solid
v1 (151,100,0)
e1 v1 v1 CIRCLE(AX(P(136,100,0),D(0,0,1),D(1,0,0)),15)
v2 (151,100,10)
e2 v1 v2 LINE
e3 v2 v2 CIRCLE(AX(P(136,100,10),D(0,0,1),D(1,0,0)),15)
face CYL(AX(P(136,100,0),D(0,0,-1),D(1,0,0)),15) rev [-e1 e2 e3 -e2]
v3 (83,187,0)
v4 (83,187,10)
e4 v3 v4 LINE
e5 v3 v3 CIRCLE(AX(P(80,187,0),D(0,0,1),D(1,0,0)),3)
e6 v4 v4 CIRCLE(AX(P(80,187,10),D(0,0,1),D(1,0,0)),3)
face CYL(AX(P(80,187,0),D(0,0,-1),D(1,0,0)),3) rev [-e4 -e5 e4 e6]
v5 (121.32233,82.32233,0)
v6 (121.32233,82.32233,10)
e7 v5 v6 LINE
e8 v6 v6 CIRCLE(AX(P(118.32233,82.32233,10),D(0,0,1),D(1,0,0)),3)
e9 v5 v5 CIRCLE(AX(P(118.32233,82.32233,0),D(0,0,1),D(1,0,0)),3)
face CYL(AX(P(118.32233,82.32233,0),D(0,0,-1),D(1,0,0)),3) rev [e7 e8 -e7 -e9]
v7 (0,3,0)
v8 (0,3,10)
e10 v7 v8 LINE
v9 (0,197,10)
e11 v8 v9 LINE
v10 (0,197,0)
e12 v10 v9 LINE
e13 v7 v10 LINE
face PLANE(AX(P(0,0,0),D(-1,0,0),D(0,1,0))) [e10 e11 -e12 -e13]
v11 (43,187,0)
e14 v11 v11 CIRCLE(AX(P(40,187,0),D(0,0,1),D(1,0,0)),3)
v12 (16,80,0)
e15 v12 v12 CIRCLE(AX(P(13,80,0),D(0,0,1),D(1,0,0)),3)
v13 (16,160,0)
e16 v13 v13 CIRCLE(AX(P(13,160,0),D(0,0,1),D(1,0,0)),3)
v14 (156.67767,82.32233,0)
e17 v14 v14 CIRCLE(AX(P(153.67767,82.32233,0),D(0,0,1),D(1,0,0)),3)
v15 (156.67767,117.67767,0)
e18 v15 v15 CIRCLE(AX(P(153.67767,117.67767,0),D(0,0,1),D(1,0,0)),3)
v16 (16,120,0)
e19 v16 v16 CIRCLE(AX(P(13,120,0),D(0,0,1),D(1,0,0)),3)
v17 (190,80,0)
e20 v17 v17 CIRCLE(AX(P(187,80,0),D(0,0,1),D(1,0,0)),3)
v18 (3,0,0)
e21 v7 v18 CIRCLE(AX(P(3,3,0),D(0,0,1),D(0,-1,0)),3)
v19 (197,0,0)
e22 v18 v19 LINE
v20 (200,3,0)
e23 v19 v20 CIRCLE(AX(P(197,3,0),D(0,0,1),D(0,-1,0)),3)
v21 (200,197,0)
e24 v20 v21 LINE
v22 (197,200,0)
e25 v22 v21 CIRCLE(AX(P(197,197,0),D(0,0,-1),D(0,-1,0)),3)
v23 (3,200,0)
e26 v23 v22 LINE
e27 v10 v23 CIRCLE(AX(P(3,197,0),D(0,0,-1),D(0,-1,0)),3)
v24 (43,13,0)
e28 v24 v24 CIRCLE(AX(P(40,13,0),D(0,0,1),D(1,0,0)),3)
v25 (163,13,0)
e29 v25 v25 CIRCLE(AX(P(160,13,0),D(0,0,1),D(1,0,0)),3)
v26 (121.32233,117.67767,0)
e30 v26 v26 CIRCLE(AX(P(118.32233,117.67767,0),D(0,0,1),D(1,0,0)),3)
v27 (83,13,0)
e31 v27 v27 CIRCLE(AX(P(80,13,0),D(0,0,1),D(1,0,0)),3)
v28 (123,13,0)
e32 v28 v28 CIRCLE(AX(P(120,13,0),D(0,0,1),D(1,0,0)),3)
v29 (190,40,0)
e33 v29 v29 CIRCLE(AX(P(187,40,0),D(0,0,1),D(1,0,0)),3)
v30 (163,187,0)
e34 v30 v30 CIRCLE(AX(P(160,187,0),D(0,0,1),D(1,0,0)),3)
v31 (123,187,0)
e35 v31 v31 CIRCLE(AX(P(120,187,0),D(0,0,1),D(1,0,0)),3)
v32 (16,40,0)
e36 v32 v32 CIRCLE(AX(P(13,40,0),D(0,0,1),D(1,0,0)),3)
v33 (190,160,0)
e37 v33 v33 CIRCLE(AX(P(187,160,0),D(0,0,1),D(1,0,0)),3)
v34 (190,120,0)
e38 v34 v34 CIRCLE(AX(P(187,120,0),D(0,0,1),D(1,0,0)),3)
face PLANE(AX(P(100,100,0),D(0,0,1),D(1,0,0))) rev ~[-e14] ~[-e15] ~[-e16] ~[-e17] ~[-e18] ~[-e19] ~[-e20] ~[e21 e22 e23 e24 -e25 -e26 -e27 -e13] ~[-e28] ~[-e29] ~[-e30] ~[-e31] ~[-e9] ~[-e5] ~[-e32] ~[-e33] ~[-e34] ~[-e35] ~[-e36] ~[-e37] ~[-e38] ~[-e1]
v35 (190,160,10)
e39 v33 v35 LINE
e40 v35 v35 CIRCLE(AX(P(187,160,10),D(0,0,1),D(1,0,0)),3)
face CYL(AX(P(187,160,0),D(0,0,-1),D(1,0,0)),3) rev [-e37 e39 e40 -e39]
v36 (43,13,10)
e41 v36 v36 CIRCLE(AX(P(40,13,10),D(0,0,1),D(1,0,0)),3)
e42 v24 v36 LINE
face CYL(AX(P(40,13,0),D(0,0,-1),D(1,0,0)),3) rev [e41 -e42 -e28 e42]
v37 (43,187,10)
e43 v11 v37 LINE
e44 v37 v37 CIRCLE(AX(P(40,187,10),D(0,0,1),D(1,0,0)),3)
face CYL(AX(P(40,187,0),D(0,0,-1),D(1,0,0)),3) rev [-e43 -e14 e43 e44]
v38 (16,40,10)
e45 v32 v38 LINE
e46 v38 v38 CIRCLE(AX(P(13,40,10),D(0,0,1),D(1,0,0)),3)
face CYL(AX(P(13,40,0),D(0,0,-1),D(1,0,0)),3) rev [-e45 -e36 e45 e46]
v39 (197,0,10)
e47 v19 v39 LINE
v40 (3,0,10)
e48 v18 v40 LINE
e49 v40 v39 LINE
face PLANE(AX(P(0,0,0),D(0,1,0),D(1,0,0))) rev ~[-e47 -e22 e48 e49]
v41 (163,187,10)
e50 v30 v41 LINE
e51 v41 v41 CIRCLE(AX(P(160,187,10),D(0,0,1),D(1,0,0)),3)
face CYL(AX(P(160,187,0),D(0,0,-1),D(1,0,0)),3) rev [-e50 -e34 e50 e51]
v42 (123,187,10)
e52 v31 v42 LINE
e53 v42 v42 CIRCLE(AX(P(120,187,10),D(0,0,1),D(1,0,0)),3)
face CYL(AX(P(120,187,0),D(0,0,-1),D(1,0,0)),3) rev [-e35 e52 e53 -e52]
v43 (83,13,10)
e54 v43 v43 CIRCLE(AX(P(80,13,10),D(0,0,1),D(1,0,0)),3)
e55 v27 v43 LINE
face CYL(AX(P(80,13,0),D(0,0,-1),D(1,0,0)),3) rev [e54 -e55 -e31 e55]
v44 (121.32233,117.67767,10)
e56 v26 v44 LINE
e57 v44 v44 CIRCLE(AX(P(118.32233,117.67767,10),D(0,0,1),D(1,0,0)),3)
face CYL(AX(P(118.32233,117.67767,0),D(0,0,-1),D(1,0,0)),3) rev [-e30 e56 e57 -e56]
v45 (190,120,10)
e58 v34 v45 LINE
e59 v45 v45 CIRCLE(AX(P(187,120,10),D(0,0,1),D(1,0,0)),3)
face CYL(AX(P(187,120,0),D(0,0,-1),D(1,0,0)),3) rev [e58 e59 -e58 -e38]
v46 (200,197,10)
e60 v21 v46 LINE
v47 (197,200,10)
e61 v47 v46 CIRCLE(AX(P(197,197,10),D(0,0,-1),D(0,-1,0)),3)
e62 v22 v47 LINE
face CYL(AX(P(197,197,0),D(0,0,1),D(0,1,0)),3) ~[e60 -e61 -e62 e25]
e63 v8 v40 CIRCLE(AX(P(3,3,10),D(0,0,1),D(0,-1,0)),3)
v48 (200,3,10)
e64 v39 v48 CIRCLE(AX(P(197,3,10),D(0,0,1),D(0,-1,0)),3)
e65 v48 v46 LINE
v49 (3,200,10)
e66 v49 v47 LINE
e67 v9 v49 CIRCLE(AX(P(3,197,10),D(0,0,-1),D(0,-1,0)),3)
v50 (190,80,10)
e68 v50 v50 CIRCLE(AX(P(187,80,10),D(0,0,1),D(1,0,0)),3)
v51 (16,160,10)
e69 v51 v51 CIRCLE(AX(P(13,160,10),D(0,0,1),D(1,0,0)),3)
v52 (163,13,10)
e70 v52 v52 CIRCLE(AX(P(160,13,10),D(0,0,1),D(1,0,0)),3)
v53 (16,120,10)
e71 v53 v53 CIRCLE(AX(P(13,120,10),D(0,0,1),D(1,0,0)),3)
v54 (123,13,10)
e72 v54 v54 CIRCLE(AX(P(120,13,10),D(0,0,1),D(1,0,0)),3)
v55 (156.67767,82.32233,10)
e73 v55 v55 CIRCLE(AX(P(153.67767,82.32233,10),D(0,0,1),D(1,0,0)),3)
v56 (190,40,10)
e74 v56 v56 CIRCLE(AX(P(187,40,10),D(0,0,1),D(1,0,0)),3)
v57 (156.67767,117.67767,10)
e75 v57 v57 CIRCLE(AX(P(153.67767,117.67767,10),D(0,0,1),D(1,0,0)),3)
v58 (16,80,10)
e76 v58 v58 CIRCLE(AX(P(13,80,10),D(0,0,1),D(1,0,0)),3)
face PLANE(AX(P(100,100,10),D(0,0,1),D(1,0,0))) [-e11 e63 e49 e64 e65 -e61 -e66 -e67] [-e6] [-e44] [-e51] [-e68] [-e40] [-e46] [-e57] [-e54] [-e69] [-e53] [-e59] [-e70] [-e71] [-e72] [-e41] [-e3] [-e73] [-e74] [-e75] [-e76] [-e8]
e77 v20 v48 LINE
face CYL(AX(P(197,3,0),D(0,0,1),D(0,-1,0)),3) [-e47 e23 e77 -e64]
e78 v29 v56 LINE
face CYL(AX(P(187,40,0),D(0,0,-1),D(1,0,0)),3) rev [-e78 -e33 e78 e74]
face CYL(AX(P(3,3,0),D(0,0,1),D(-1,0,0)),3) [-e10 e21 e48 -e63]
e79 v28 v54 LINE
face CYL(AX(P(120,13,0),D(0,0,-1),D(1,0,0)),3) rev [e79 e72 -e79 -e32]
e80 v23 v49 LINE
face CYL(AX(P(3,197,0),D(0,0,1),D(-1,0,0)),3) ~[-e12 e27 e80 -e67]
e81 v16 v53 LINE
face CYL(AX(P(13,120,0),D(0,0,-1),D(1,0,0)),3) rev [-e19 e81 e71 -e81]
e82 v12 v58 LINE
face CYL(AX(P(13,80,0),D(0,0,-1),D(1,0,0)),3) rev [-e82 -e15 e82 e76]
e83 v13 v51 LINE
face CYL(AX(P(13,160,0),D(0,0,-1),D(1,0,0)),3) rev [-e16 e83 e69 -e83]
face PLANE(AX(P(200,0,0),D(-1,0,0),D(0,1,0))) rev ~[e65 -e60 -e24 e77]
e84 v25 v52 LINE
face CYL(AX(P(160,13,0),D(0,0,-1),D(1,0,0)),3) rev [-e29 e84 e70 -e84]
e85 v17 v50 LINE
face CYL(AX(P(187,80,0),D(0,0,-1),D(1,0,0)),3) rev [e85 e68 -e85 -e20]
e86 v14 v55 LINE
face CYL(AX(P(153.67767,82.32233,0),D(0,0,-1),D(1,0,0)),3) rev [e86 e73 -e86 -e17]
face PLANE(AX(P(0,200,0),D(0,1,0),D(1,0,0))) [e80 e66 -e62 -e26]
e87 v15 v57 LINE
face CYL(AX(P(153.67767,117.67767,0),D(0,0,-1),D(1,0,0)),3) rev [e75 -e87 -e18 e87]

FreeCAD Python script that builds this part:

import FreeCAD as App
import Part
import Sketcher

V = App.Vector


def edges_at(feature, points):
    """Names of the edges that pass closest to the given points."""
    edges = feature.Shape.Edges
    near = lambda p: min(range(len(edges)), key=lambda i: edges[i].distToShape(Part.Vertex(*p))[0])
    return sorted({f"Edge{near(p) + 1}" for p in points})


def add_polygon(sketch, points):
    """Adds a closed chain of lines whose ends are joined by coincident constraints."""
    first, n = sketch.GeometryCount, len(points)
    for a, b in zip(points, points[1:] + points[:1]):
        sketch.addGeometry(Part.LineSegment(App.Vector(*a, 0), App.Vector(*b, 0)), False)
    for i in range(n):
        sketch.addConstraint(Sketcher.Constraint("Coincident", first + i, 2, first + (i + 1) % n, 1))

doc = App.newDocument("Part")
body = doc.addObject("PartDesign::Body", "Body")

# Sketch on XY plane
sketch1 = doc.addObject("Sketcher::SketchObject", "Sketch")
body.addObject(sketch1)
sketch1.AttachmentSupport = (doc.XY_Plane, [""])
sketch1.MapMode = "FlatFace"
add_polygon(sketch1, [(0, 200), (0, 0), (200, 0), (200, 200)])  # lines 0-3
sketch1.addGeometry(Part.Circle(V(40, 13, 0), V(0, 0, 1), 3), False)  # 4
sketch1.addGeometry(Part.Circle(V(13, 40, 0), V(0, 0, 1), 3), False)  # 5
sketch1.addGeometry(Part.Circle(V(80, 13, 0), V(0, 0, 1), 3), False)  # 6
sketch1.addGeometry(Part.Circle(V(13, 80, 0), V(0, 0, 1), 3), False)  # 7
sketch1.addGeometry(Part.Circle(V(120, 13, 0), V(0, 0, 1), 3), False)  # 8
sketch1.addGeometry(Part.Circle(V(160, 13, 0), V(0, 0, 1), 3), False)  # 9
sketch1.addGeometry(Part.Circle(V(187, 40, 0), V(0, 0, 1), 3), False)  # 10
sketch1.addGeometry(Part.Circle(V(118.3, 82.3, 0), V(0, 0, 1), 3), False)  # 11
sketch1.addGeometry(Part.Circle(V(153.7, 82.3, 0), V(0, 0, 1), 3), False)  # 12
sketch1.addGeometry(Part.Circle(V(187, 80, 0), V(0, 0, 1), 3), False)  # 13
sketch1.addGeometry(Part.Circle(V(13, 120, 0), V(0, 0, 1), 3), False)  # 14
sketch1.addGeometry(Part.Circle(V(13, 160, 0), V(0, 0, 1), 3), False)  # 15
sketch1.addGeometry(Part.Circle(V(40, 187, 0), V(0, 0, 1), 3), False)  # 16
sketch1.addGeometry(Part.Circle(V(80, 187, 0), V(0, 0, 1), 3), False)  # 17
sketch1.addGeometry(Part.Circle(V(118.3, 117.7, 0), V(0, 0, 1), 3), False)  # 18
sketch1.addGeometry(Part.Circle(V(136, 100, 0), V(0, 0, 1), 15), False)  # 19
sketch1.addGeometry(Part.Circle(V(153.7, 117.7, 0), V(0, 0, 1), 3), False)  # 20
sketch1.addGeometry(Part.Circle(V(187, 120, 0), V(0, 0, 1), 3), False)  # 21
sketch1.addGeometry(Part.Circle(V(120, 187, 0), V(0, 0, 1), 3), False)  # 22
sketch1.addGeometry(Part.Circle(V(187, 160, 0), V(0, 0, 1), 3), False)  # 23
sketch1.addGeometry(Part.Circle(V(160, 187, 0), V(0, 0, 1), 3), False)  # 24
sketch1.addConstraint([
    Sketcher.Constraint("Vertical", 0),
    Sketcher.Constraint("Horizontal", 1),
    Sketcher.Constraint("Vertical", 2),
    Sketcher.Constraint("Horizontal", 3),
    Sketcher.Constraint("Coincident", 0, 2, -1, 1),
    Sketcher.Constraint("Equal", 4, 5),
    Sketcher.Constraint("Equal", 5, 6),
    Sketcher.Constraint("Equal", 6, 7),
    Sketcher.Constraint("Equal", 7, 8),
    Sketcher.Constraint("Equal", 8, 9),
    Sketcher.Constraint("Equal", 9, 10),
    Sketcher.Constraint("Equal", 10, 11),
    Sketcher.Constraint("Equal", 11, 12),
    Sketcher.Constraint("Equal", 12, 13),
    Sketcher.Constraint("Equal", 13, 14),
    Sketcher.Constraint("Equal", 14, 15),
    Sketcher.Constraint("Equal", 15, 16),
    Sketcher.Constraint("Equal", 16, 17),
    Sketcher.Constraint("Equal", 17, 18),
    Sketcher.Constraint("Equal", 18, 20),
    Sketcher.Constraint("Equal", 20, 21),
    Sketcher.Constraint("Equal", 21, 22),
    Sketcher.Constraint("Equal", 22, 23),
    Sketcher.Constraint("Equal", 23, 24),
    Sketcher.Constraint("Horizontal", 4, 3, 6, 3),
    Sketcher.Constraint("Horizontal", 6, 3, 8, 3),
    Sketcher.Constraint("Horizontal", 8, 3, 9, 3),
    Sketcher.Constraint("Horizontal", 5, 3, 10, 3),
    Sketcher.Constraint("Horizontal", 11, 3, 12, 3),
    Sketcher.Constraint("Horizontal", 7, 3, 13, 3),
    Sketcher.Constraint("Horizontal", 16, 3, 17, 3),
    Sketcher.Constraint("Horizontal", 18, 3, 20, 3),
    Sketcher.Constraint("Horizontal", 14, 3, 21, 3),
    Sketcher.Constraint("Horizontal", 17, 3, 22, 3),
    Sketcher.Constraint("Horizontal", 15, 3, 23, 3),
    Sketcher.Constraint("Horizontal", 22, 3, 24, 3),
    Sketcher.Constraint("Vertical", 5, 3, 7, 3),
    Sketcher.Constraint("Vertical", 10, 3, 13, 3),
    Sketcher.Constraint("Vertical", 7, 3, 14, 3),
    Sketcher.Constraint("Vertical", 14, 3, 15, 3),
    Sketcher.Constraint("Vertical", 4, 3, 16, 3),
    Sketcher.Constraint("Vertical", 6, 3, 17, 3),
    Sketcher.Constraint("Vertical", 11, 3, 18, 3),
    Sketcher.Constraint("Vertical", 12, 3, 20, 3),
    Sketcher.Constraint("Vertical", 13, 3, 21, 3),
    Sketcher.Constraint("Vertical", 8, 3, 22, 3),
    Sketcher.Constraint("Vertical", 21, 3, 23, 3),
    Sketcher.Constraint("Vertical", 9, 3, 24, 3),
    Sketcher.Constraint("Equal", 3, 0),
    Sketcher.Constraint("Diameter", 4, 6.0),
    Sketcher.Constraint("Diameter", 19, 30.0),
    Sketcher.Constraint("DistanceX", 1, 1, 1, 2, 200.0),
    Sketcher.Constraint("DistanceX", -1, 1, 4, 3, 40.0),
    Sketcher.Constraint("DistanceY", -1, 1, 4, 3, 13.0),
    Sketcher.Constraint("DistanceX", -1, 1, 5, 3, 13.0),
    Sketcher.Constraint("DistanceY", -1, 1, 5, 3, 40.0),
    Sketcher.Constraint("DistanceX", -1, 1, 6, 3, 80.0),
    Sketcher.Constraint("DistanceY", -1, 1, 7, 3, 80.0),
    Sketcher.Constraint("DistanceX", -1, 1, 8, 3, 120.0),
    Sketcher.Constraint("DistanceX", -1, 1, 9, 3, 160.0),
    Sketcher.Constraint("DistanceX", -1, 1, 10, 3, 187.0),
    Sketcher.Constraint("DistanceY", -1, 1, 14, 3, 120.0),
    Sketcher.Constraint("DistanceY", -1, 1, 15, 3, 160.0),
    Sketcher.Constraint("DistanceY", -1, 1, 16, 3, 187.0),
    Sketcher.Constraint("DistanceX", -1, 1, 19, 3, 136.0),
    Sketcher.Constraint("DistanceY", -1, 1, 19, 3, 100.0),
    Sketcher.Constraint("DistanceX", -1, 1, 11, 3, 118.32233),
    Sketcher.Constraint("DistanceY", -1, 1, 11, 3, 82.32233),
    Sketcher.Constraint("DistanceX", -1, 1, 12, 3, 153.67767),
    Sketcher.Constraint("DistanceY", -1, 1, 18, 3, 117.67767),
])
pad1 = doc.addObject("PartDesign::Pad", "Pad")
body.addObject(pad1)
pad1.Profile = sketch1
pad1.Length = 10
doc.recompute()

fillet = doc.addObject("PartDesign::Fillet", "Fillet")
body.addObject(fillet)
fillet.Base = (pad1, edges_at(pad1, [
    (0, 0, 5),
    (200, 0, 5),
    (0, 200, 5),
    (200, 200, 5),
]))
fillet.Radius = 3

doc.recompute()
